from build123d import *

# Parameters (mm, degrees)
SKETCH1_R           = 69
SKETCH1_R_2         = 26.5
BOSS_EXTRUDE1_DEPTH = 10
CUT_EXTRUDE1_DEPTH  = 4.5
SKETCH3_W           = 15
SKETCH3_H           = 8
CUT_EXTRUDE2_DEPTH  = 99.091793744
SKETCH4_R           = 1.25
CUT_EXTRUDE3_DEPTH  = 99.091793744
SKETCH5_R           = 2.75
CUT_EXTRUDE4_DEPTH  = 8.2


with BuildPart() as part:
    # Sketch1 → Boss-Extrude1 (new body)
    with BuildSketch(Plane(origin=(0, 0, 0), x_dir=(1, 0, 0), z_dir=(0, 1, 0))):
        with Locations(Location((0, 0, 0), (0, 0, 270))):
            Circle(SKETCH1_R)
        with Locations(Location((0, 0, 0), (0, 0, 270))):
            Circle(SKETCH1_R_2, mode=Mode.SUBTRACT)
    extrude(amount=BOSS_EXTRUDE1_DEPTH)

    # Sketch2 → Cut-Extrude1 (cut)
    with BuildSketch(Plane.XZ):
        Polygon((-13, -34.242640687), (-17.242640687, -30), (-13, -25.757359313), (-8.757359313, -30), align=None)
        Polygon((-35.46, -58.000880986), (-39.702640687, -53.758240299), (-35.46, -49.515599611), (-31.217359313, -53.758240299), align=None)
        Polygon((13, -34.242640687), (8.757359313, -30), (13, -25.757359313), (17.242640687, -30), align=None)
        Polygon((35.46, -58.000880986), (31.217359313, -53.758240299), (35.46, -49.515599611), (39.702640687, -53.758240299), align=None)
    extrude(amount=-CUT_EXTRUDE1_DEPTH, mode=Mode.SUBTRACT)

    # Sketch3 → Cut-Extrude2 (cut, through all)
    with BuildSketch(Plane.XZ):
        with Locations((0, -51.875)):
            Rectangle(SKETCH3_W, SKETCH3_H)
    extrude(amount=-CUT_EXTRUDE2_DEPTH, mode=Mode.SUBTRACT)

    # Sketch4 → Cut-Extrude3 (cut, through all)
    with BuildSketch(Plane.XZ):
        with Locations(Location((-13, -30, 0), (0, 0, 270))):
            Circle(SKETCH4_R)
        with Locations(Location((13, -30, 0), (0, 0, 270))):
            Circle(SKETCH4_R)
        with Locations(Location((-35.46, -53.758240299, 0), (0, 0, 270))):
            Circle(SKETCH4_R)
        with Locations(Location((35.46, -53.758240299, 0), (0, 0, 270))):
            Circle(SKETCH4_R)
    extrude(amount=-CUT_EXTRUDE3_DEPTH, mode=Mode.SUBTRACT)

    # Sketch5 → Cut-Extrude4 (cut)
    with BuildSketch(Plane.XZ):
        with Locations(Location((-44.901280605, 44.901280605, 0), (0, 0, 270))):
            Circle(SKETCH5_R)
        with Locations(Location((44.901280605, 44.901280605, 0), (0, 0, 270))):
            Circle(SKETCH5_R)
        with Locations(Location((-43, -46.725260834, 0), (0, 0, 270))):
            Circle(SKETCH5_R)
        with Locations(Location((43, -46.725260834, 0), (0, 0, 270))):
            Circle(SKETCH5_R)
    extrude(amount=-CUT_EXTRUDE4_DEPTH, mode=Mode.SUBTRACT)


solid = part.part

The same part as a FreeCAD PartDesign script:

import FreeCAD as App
import Part
import Sketcher

doc = App.newDocument("Part")
body = doc.addObject("PartDesign::Body", "Body")

# Sketch on XZ plane
sketch1 = body.newObject("Sketcher::SketchObject", "Sketch")
sketch1.AttachmentSupport = (doc.getObject("XZ_Plane"), [""])
sketch1.MapMode = "FlatFace"
sketch1.addGeometry(Part.Circle(App.Vector(0, 0, 0), App.Vector(0, 0, 1), 69), False)
sketch1.addGeometry(Part.Circle(App.Vector(0, 0, 0), App.Vector(0, 0, 1), 26), False)
sketch1.addConstraint(Sketcher.Constraint("Coincident", 0, 3, -1, 1))
sketch1.addConstraint(Sketcher.Constraint("Coincident", 1, 3, -1, 1))
sketch1.addConstraint(Sketcher.Constraint("Diameter", 0, 138.0))
sketch1.addConstraint(Sketcher.Constraint("Diameter", 1, 53.0))
pad1 = body.newObject("PartDesign::Pad", "Pad")
pad1.Profile = sketch1
pad1.Length = 10
pad1.Reversed = True

# Sketch on XZ plane
sketch2 = body.newObject("Sketcher::SketchObject", "Sketch001")
sketch2.AttachmentSupport = (doc.getObject("XZ_Plane"), [""])
sketch2.MapMode = "FlatFace"
sketch2.addGeometry(Part.LineSegment(App.Vector(-17, -30, 0), App.Vector(-13, -34, 0)), False)
sketch2.addGeometry(Part.LineSegment(App.Vector(-13, -34, 0), App.Vector(-9, -30, 0)), False)
sketch2.addGeometry(Part.LineSegment(App.Vector(-9, -30, 0), App.Vector(-13, -26, 0)), False)
sketch2.addGeometry(Part.LineSegment(App.Vector(-13, -26, 0), App.Vector(-17, -30, 0)), False)
sketch2.addGeometry(Part.LineSegment(App.Vector(-40, -54, 0), App.Vector(-35, -58, 0)), False)
sketch2.addGeometry(Part.LineSegment(App.Vector(-35, -58, 0), App.Vector(-31, -54, 0)), False)
sketch2.addGeometry(Part.LineSegment(App.Vector(-31, -54, 0), App.Vector(-35, -50, 0)), False)
sketch2.addGeometry(Part.LineSegment(App.Vector(-35, -50, 0), App.Vector(-40, -54, 0)), False)
sketch2.addGeometry(Part.LineSegment(App.Vector(9, -30, 0), App.Vector(13, -34, 0)), False)
sketch2.addGeometry(Part.LineSegment(App.Vector(13, -34, 0), App.Vector(17, -30, 0)), False)
sketch2.addGeometry(Part.LineSegment(App.Vector(17, -30, 0), App.Vector(13, -26, 0)), False)
sketch2.addGeometry(Part.LineSegment(App.Vector(13, -26, 0), App.Vector(9, -30, 0)), False)
sketch2.addGeometry(Part.LineSegment(App.Vector(31, -54, 0), App.Vector(35, -58, 0)), False)
sketch2.addGeometry(Part.LineSegment(App.Vector(35, -58, 0), App.Vector(40, -54, 0)), False)
sketch2.addGeometry(Part.LineSegment(App.Vector(40, -54, 0), App.Vector(35, -50, 0)), False)
sketch2.addGeometry(Part.LineSegment(App.Vector(35, -50, 0), App.Vector(31, -54, 0)), False)
sketch2.addConstraint(Sketcher.Constraint("Coincident", 0, 2, 1, 1))
sketch2.addConstraint(Sketcher.Constraint("Coincident", 1, 2, 2, 1))
sketch2.addConstraint(Sketcher.Constraint("Coincident", 2, 2, 3, 1))
sketch2.addConstraint(Sketcher.Constraint("Coincident", 3, 2, 0, 1))
sketch2.addConstraint(Sketcher.Constraint("Coincident", 4, 2, 5, 1))
sketch2.addConstraint(Sketcher.Constraint("Coincident", 5, 2, 6, 1))
sketch2.addConstraint(Sketcher.Constraint("Coincident", 6, 2, 7, 1))
sketch2.addConstraint(Sketcher.Constraint("Coincident", 7, 2, 4, 1))
sketch2.addConstraint(Sketcher.Constraint("Coincident", 8, 2, 9, 1))
sketch2.addConstraint(Sketcher.Constraint("Coincident", 9, 2, 10, 1))
sketch2.addConstraint(Sketcher.Constraint("Coincident", 10, 2, 11, 1))
sketch2.addConstraint(Sketcher.Constraint("Coincident", 11, 2, 8, 1))
sketch2.addConstraint(Sketcher.Constraint("Coincident", 12, 2, 13, 1))
sketch2.addConstraint(Sketcher.Constraint("Coincident", 13, 2, 14, 1))
sketch2.addConstraint(Sketcher.Constraint("Coincident", 14, 2, 15, 1))
sketch2.addConstraint(Sketcher.Constraint("Coincident", 15, 2, 12, 1))
sketch2.addConstraint(Sketcher.Constraint("Symmetric", 0, 2, 8, 2, -2))
sketch2.addConstraint(Sketcher.Constraint("Symmetric", 3, 2, 9, 2, -2))
sketch2.addConstraint(Sketcher.Constraint("Symmetric", 2, 2, 10, 2, -2))
sketch2.addConstraint(Sketcher.Constraint("Symmetric", 1, 2, 11, 2, -2))
sketch2.addConstraint(Sketcher.Constraint("Symmetric", 4, 2, 12, 2, -2))
sketch2.addConstraint(Sketcher.Constraint("Symmetric", 7, 2, 13, 2, -2))
sketch2.addConstraint(Sketcher.Constraint("Symmetric", 6, 2, 14, 2, -2))
sketch2.addConstraint(Sketcher.Constraint("Symmetric", 5, 2, 15, 2, -2))
sketch2.addConstraint(Sketcher.Constraint("Perpendicular", 0, 1))
sketch2.addConstraint(Sketcher.Constraint("Perpendicular", 1, 2))
sketch2.addConstraint(Sketcher.Constraint("Perpendicular", 2, 3))
sketch2.addConstraint(Sketcher.Constraint("Perpendicular", 3, 4))
sketch2.addConstraint(Sketcher.Constraint("Perpendicular", 4, 5))
sketch2.addConstraint(Sketcher.Constraint("Perpendicular", 5, 6))
sketch2.addConstraint(Sketcher.Constraint("Perpendicular", 6, 7))
sketch2.addConstraint(Sketcher.Constraint("Perpendicular", 7, 8))
sketch2.addConstraint(Sketcher.Constraint("Horizontal", 1, 2, 3, 2))
sketch2.addConstraint(Sketcher.Constraint("Horizontal", 5, 2, 7, 2))
sketch2.addConstraint(Sketcher.Constraint("Equal", 3, 4))
sketch2.addConstraint(Sketcher.Constraint("Distance", 0, 6.0))
sketch2.addConstraint(Sketcher.Constraint("DistanceX", 0, 2, -1, 1, 13.0))
sketch2.addConstraint(Sketcher.Constraint("DistanceY", 1, 2, -1, 1, 30.0))
sketch2.addConstraint(Sketcher.Constraint("DistanceX", 4, 2, -1, 1, 35.46))
sketch2.addConstraint(Sketcher.Constraint("DistanceY", 6, 2, -1, 1, 49.5156))
pocket1 = body.newObject("PartDesign::Pocket", "Pocket")
pocket1.Profile = sketch2
pocket1.Length = 4.5

# Sketch on XZ plane
sketch3 = body.newObject("Sketcher::SketchObject", "Sketch002")
sketch3.AttachmentSupport = (doc.getObject("XZ_Plane"), [""])
sketch3.MapMode = "FlatFace"
sketch3.addGeometry(Part.LineSegment(App.Vector(-8, -48, 0), App.Vector(-8, -56, 0)), False)
sketch3.addGeometry(Part.LineSegment(App.Vector(-8, -56, 0), App.Vector(8, -56, 0)), False)
sketch3.addGeometry(Part.LineSegment(App.Vector(8, -56, 0), App.Vector(8, -48, 0)), False)
sketch3.addGeometry(Part.LineSegment(App.Vector(8, -48, 0), App.Vector(-8, -48, 0)), False)
sketch3.addConstraint(Sketcher.Constraint("Coincident", 0, 2, 1, 1))
sketch3.addConstraint(Sketcher.Constraint("Coincident", 1, 2, 2, 1))
sketch3.addConstraint(Sketcher.Constraint("Coincident", 2, 2, 3, 1))
sketch3.addConstraint(Sketcher.Constraint("Coincident", 3, 2, 0, 1))
sketch3.addConstraint(Sketcher.Constraint("Vertical", 0))
sketch3.addConstraint(Sketcher.Constraint("Horizontal", 1))
sketch3.addConstraint(Sketcher.Constraint("Vertical", 2))
sketch3.addConstraint(Sketcher.Constraint("Horizontal", 3))
sketch3.addConstraint(Sketcher.Constraint("DistanceX", 1, 1, 1, 2, 15.0))
sketch3.addConstraint(Sketcher.Constraint("DistanceY", 0, 2, 0, 1, 8.0))
sketch3.addConstraint(Sketcher.Constraint("DistanceX", 0, 2, -1, 1, 7.5))
sketch3.addConstraint(Sketcher.Constraint("DistanceY", 0, 2, -1, 1, 55.875))
pocket2 = body.newObject("PartDesign::Pocket", "Pocket001")
pocket2.Profile = sketch3
pocket2.Type = "ThroughAll"

# Sketch on XZ plane
sketch4 = body.newObject("Sketcher::SketchObject", "Sketch003")
sketch4.AttachmentSupport = (doc.getObject("XZ_Plane"), [""])
sketch4.MapMode = "FlatFace"
sketch4.addGeometry(Part.Circle(App.Vector(-13, -30, 0), App.Vector(0, 0, 1), 1.2), False)
sketch4.addGeometry(Part.Circle(App.Vector(13, -30, 0), App.Vector(0, 0, 1), 1.2), False)
sketch4.addGeometry(Part.Circle(App.Vector(-35.5, -53.8, 0), App.Vector(0, 0, 1), 1.2), False)
sketch4.addGeometry(Part.Circle(App.Vector(35.5, -53.8, 0), App.Vector(0, 0, 1), 1.2), False)
sketch4.addConstraint(Sketcher.Constraint("Equal", 0, 1))
sketch4.addConstraint(Sketcher.Constraint("Equal", 1, 2))
sketch4.addConstraint(Sketcher.Constraint("Equal", 2, 3))
sketch4.addConstraint(Sketcher.Constraint("Symmetric", 0, 3, 1, 3, -2))
sketch4.addConstraint(Sketcher.Constraint("Symmetric", 2, 3, 3, 3, -2))
sketch4.addConstraint(Sketcher.Constraint("Diameter", 0, 2.5))
sketch4.addConstraint(Sketcher.Constraint("DistanceX", 0, 3, -1, 1, 13.0))
sketch4.addConstraint(Sketcher.Constraint("DistanceY", 0, 3, -1, 1, 30.0))
sketch4.addConstraint(Sketcher.Constraint("DistanceX", 2, 3, -1, 1, 35.46))
sketch4.addConstraint(Sketcher.Constraint("DistanceY", 2, 3, -1, 1, 53.75824))
pocket3 = body.newObject("PartDesign::Pocket", "Pocket002")
pocket3.Profile = sketch4
pocket3.Type = "ThroughAll"

# Sketch on XZ plane
sketch5 = body.newObject("Sketcher::SketchObject", "Sketch004")
sketch5.AttachmentSupport = (doc.getObject("XZ_Plane"), [""])
sketch5.MapMode = "FlatFace"
sketch5.addGeometry(Part.Circle(App.Vector(-44.9, 44.9, 0), App.Vector(0, 0, 1), 2.8), False)
sketch5.addGeometry(Part.Circle(App.Vector(44.9, 44.9, 0), App.Vector(0, 0, 1), 2.8), False)
sketch5.addGeometry(Part.Circle(App.Vector(-43, -46.7, 0), App.Vector(0, 0, 1), 2.8), False)
sketch5.addGeometry(Part.Circle(App.Vector(43, -46.7, 0), App.Vector(0, 0, 1), 2.8), False)
sketch5.addConstraint(Sketcher.Constraint("Equal", 0, 1))
sketch5.addConstraint(Sketcher.Constraint("Equal", 1, 2))
sketch5.addConstraint(Sketcher.Constraint("Equal", 2, 3))
sketch5.addConstraint(Sketcher.Constraint("Symmetric", 0, 3, 1, 3, -2))
sketch5.addConstraint(Sketcher.Constraint("Symmetric", 2, 3, 3, 3, -2))
sketch5.addConstraint(Sketcher.Constraint("Diameter", 0, 5.5))
sketch5.addConstraint(Sketcher.Constraint("DistanceX", 2, 3, -1, 1, 43.0))
sketch5.addConstraint(Sketcher.Constraint("DistanceX", 0, 3, -1, 1, 44.901281))
sketch5.addConstraint(Sketcher.Constraint("DistanceY", -1, 1, 0, 3, 44.901281))
sketch5.addConstraint(Sketcher.Constraint("DistanceY", 2, 3, -1, 1, 46.725261))
pocket4 = body.newObject("PartDesign::Pocket", "Pocket003")
pocket4.Profile = sketch5
pocket4.Length = 8.2

doc.recompute()
